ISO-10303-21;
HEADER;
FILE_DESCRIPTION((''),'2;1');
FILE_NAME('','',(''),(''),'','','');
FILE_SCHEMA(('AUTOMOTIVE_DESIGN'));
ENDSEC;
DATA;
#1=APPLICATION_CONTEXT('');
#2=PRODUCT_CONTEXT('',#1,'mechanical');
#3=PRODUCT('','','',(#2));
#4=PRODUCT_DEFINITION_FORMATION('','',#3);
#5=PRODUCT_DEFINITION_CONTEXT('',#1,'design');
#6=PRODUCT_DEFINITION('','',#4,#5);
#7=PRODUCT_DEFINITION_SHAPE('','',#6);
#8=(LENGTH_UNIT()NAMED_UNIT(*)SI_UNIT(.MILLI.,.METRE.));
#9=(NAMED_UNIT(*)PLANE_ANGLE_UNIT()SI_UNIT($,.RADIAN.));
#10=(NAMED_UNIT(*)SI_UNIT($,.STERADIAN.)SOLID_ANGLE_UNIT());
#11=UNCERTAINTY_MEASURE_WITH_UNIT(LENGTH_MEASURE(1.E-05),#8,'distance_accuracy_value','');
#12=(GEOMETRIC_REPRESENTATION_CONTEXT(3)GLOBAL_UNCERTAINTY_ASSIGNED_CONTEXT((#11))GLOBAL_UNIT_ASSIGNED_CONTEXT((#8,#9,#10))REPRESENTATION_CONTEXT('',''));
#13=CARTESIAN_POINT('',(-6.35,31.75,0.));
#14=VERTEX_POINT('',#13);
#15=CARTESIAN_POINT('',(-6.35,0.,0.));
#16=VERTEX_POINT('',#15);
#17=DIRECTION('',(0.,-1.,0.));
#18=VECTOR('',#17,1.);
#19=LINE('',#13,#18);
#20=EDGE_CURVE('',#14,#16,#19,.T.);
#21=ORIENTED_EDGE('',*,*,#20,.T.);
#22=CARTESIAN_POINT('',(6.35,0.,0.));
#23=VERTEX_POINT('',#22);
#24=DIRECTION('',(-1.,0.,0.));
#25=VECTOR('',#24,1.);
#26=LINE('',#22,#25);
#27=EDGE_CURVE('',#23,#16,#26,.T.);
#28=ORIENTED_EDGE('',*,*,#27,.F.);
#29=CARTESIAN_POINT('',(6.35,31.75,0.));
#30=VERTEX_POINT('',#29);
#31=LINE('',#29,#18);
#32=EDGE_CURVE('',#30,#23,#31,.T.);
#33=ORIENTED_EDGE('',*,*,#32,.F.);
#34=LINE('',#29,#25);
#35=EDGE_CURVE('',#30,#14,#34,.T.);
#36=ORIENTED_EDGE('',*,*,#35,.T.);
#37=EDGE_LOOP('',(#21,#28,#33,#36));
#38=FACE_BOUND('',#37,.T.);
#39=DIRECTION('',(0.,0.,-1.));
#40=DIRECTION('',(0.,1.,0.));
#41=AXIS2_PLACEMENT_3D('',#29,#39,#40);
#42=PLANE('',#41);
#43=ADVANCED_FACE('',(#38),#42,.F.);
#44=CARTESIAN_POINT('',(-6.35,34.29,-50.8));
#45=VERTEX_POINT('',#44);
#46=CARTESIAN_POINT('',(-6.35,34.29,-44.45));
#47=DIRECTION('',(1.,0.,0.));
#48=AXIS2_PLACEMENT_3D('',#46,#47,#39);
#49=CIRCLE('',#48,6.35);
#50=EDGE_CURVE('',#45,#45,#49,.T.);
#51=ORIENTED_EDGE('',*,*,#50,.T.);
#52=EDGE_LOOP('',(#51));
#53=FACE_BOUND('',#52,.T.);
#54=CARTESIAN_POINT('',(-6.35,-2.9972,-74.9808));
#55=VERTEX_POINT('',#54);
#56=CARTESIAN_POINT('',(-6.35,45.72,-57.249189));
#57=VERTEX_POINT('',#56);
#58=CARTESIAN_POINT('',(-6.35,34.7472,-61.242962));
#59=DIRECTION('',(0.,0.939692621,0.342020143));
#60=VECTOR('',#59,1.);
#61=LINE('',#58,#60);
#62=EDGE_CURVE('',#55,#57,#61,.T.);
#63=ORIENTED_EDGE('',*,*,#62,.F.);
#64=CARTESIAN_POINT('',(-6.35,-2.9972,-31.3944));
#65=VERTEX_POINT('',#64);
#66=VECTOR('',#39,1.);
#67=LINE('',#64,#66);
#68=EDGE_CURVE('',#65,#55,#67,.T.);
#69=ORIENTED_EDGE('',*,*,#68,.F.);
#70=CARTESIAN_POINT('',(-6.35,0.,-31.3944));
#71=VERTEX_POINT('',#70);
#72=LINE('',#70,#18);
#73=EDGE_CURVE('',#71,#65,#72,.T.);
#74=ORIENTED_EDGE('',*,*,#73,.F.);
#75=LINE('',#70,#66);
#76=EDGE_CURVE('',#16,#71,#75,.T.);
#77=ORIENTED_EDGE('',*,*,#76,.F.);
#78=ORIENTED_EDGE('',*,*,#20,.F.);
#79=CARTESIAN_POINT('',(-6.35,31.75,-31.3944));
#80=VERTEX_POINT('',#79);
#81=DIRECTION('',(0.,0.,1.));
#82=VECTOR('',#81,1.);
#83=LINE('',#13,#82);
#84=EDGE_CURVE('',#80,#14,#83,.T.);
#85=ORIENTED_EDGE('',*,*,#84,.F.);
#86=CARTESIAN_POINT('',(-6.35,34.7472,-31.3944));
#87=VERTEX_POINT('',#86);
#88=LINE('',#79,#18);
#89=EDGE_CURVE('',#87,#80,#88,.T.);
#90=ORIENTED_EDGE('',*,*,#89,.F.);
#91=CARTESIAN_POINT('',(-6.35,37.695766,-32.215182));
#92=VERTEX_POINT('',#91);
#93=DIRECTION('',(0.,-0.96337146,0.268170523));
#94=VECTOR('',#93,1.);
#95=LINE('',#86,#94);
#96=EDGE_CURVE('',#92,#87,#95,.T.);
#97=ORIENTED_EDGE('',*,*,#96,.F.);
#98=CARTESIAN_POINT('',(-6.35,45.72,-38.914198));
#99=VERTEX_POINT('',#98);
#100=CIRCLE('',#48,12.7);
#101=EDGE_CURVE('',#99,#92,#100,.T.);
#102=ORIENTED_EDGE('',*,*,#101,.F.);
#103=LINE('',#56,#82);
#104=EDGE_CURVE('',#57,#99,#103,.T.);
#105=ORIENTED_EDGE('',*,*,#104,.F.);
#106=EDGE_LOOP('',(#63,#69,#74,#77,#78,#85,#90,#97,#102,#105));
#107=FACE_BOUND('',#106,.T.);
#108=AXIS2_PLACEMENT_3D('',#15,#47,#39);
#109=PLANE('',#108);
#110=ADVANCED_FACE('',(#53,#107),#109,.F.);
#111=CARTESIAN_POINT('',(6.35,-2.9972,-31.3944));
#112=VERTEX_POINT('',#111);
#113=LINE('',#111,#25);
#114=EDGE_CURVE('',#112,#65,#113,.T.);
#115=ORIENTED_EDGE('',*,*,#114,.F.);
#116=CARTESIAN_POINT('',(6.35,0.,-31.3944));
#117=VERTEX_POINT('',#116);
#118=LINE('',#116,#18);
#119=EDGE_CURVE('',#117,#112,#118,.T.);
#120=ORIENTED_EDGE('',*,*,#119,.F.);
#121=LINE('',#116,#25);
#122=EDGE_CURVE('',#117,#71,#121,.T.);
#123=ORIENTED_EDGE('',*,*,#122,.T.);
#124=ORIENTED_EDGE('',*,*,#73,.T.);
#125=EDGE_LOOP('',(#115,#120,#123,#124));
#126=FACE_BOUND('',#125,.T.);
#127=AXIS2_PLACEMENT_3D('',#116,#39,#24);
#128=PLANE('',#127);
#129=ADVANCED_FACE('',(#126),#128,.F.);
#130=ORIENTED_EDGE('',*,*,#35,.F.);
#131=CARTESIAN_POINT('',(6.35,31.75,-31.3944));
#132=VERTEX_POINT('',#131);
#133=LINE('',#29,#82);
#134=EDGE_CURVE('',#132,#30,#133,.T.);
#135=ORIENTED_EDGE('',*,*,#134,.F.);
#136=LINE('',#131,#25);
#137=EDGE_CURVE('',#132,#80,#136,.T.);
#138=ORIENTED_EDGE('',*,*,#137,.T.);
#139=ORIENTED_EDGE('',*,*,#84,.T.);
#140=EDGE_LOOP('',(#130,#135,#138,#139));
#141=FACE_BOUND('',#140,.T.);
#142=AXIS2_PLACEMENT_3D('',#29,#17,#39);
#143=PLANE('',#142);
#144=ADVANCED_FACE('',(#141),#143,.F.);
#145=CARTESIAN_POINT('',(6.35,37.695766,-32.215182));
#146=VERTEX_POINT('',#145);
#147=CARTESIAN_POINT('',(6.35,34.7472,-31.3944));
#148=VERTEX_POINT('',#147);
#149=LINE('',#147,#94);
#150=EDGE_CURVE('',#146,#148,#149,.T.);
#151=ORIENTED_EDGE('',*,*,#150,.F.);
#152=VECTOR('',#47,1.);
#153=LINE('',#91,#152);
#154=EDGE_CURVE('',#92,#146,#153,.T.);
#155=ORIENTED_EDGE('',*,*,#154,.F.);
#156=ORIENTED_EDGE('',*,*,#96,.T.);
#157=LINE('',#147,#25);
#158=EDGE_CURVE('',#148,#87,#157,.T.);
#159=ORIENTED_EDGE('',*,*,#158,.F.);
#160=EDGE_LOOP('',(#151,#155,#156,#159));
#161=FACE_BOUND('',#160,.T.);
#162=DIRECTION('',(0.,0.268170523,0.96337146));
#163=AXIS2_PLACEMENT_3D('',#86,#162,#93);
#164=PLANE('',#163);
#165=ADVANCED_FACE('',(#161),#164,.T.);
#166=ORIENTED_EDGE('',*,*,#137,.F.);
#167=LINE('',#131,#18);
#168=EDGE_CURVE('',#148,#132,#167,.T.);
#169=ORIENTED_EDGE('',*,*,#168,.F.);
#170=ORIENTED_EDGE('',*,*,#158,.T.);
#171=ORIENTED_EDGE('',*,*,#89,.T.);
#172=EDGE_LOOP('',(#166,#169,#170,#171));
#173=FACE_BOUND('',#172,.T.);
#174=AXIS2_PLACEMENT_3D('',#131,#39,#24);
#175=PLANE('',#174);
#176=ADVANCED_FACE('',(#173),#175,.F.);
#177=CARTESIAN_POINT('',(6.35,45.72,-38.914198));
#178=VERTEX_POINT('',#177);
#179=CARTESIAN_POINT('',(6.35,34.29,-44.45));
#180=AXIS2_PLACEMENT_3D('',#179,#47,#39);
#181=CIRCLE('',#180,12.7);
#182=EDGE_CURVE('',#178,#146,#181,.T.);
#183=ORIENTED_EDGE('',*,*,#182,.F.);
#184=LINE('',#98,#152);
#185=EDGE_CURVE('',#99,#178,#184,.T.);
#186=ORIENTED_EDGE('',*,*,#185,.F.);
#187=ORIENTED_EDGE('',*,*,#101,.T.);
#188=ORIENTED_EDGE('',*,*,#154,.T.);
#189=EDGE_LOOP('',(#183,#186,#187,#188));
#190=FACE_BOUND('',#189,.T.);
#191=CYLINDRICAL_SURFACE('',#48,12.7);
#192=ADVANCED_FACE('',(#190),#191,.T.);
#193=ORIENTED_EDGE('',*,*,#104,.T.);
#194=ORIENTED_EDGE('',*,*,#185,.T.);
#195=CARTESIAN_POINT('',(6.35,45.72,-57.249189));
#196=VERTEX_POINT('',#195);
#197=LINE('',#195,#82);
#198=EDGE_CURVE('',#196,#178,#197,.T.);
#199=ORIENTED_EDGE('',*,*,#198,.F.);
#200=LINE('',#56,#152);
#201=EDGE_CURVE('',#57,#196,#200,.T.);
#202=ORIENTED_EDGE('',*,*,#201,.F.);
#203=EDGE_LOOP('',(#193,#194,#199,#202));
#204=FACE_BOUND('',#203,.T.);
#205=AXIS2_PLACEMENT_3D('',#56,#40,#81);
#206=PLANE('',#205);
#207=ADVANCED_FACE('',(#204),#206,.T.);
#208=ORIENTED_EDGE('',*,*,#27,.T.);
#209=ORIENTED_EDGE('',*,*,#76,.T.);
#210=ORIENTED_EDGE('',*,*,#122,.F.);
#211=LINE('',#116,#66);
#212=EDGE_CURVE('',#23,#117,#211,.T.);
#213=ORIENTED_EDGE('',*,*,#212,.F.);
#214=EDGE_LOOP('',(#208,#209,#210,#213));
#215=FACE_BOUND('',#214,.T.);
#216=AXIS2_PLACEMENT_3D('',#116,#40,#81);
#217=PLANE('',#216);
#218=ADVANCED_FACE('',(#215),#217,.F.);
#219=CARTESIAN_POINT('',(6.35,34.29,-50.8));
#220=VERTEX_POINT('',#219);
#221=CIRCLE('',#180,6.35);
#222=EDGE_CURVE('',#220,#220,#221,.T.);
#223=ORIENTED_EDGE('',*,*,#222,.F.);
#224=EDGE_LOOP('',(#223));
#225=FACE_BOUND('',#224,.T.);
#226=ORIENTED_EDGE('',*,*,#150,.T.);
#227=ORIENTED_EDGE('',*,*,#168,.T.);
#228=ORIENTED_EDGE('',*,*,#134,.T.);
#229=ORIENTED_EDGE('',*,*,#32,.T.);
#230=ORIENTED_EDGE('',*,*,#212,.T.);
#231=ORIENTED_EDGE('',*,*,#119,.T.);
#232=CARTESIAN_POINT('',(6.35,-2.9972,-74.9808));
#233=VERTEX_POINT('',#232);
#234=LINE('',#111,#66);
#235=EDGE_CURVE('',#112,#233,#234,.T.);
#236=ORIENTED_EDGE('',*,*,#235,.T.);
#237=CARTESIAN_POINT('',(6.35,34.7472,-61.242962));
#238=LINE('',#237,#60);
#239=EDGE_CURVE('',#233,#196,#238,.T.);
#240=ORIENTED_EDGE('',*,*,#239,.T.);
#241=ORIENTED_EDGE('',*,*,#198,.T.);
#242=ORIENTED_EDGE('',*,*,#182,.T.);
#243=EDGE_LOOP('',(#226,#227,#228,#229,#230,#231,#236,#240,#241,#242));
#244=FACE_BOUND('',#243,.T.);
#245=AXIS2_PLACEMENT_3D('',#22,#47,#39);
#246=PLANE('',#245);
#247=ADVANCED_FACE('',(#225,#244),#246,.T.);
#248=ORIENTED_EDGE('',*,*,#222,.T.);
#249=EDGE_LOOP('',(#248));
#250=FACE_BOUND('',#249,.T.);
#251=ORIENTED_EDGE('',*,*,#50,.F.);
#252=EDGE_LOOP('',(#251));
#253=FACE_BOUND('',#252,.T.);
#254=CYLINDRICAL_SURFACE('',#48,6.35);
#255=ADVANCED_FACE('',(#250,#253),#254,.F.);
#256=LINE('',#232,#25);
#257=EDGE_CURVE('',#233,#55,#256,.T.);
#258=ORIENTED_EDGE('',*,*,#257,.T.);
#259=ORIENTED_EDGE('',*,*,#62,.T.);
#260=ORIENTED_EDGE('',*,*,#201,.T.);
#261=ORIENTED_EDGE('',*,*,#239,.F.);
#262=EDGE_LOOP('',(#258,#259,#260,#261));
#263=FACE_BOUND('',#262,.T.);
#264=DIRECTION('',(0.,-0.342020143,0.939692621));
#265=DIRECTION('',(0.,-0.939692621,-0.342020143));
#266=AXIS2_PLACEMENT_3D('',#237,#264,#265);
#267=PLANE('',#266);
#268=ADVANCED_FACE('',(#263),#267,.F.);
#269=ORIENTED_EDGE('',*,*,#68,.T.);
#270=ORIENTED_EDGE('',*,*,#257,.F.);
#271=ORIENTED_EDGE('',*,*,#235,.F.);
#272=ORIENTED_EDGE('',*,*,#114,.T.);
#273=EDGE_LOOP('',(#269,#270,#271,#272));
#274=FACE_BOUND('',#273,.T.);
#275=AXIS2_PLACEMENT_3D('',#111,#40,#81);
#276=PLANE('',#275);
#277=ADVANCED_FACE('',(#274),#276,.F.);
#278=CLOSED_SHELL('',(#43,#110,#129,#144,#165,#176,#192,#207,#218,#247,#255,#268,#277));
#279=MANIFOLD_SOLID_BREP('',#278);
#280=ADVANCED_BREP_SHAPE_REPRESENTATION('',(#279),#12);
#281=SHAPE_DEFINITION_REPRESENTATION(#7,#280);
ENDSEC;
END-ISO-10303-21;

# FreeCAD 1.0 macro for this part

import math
import FreeCAD as App
import Part
import Sketcher
Q = App.Units.Quantity


def add_polygon(sketch, points):
    """Adds a closed chain of lines whose ends are joined by coincident constraints."""
    first, n = sketch.GeometryCount, len(points)
    for a, b in zip(points, points[1:] + points[:1]):
        sketch.addGeometry(Part.LineSegment(App.Vector(*a, 0), App.Vector(*b, 0)), False)
    for i in range(n):
        sketch.addConstraint(Sketcher.Constraint("Coincident", first + i, 2, first + (i + 1) % n, 1))

doc = App.newDocument("Part")
body = doc.addObject("PartDesign::Body", "Body")

# Sketch on YZ plane
sketch1 = body.newObject("Sketcher::SketchObject", "Sketch")
sketch1.AttachmentSupport = (doc.getObject("YZ_Plane"), [""])
sketch1.MapMode = "FlatFace"
add_polygon(sketch1, [(31.8, 0), (0, 0), (0, -31.4), (-3, -31.4), (-3, -75), (34.7, -61.2), (34.7, -31.4), (31.8, -31.4)])  # lines 0-7
sketch1.addConstraint([
    Sketcher.Constraint("Horizontal", 0),
    Sketcher.Constraint("Vertical", 1),
    Sketcher.Constraint("Horizontal", 2),
    Sketcher.Constraint("Vertical", 3),
    Sketcher.Constraint("Vertical", 5),
    Sketcher.Constraint("Horizontal", 6),
    Sketcher.Constraint("Vertical", 7),
    Sketcher.Constraint("Coincident", 0, 2, -1, 1),
    Sketcher.Constraint("Horizontal", 2, 2, 5, 2),
    Sketcher.Constraint("Equal", 2, 6),
    Sketcher.Constraint("Angle", 4, Q("20 deg")),
    Sketcher.Constraint("DistanceX", 0, 2, 0, 1, Q("1.25 in")),
    Sketcher.Constraint("DistanceX", 2, 2, 2, 1, Q("0.118 in")),
    Sketcher.Constraint("DistanceY", 1, 2, 1, 1, Q("1.236 in")),
    Sketcher.Constraint("DistanceY", 3, 2, 3, 1, Q("1.716 in")),
])
pad1 = body.newObject("PartDesign::Pad", "Pad")
pad1.Profile = sketch1
pad1.Length = Q("0.5 in")
pad1.Midplane = True

# Sketch on YZ plane
sketch2 = body.newObject("Sketcher::SketchObject", "Sketch001")
sketch2.AttachmentSupport = (doc.getObject("YZ_Plane"), [""])
sketch2.MapMode = "FlatFace"
sketch2.AttachmentOffset = App.Placement(App.Vector(0, 0, 0.25 * 25.4), App.Rotation())
sketch2.addGeometry([
    Part.LineSegment(App.Vector(34.75, -57.14, 0), App.Vector(34.75, -61.24, 0)),  # 0
    Part.LineSegment(App.Vector(34.75, -61.24, 0), App.Vector(45.72, -57.25, 0)),  # 1
    Part.LineSegment(App.Vector(45.72, -57.25, 0), App.Vector(45.72, -38.91, 0)),  # 2
    Part.ArcOfCircle(Part.Circle(App.Vector(34.29, -44.45, 0), App.Vector(0, 0, 1), 12.7), math.radians(26), math.radians(74)),  # 3
    Part.LineSegment(App.Vector(37.7, -32.22, 0), App.Vector(34.75, -31.39, 0)),  # 4
    Part.LineSegment(App.Vector(34.75, -31.39, 0), App.Vector(34.75, -31.76, 0)),  # 5
    Part.ArcOfCircle(Part.Circle(App.Vector(34.29, -44.45, 0), App.Vector(0, 0, 1), 12.7), math.radians(88), math.radians(272)),  # 6
], False)
sketch2.addConstraint([
    Sketcher.Constraint("Coincident", 0, 2, 1, 1),
    Sketcher.Constraint("Coincident", 1, 2, 2, 1),
    Sketcher.Constraint("Coincident", 2, 2, 3, 1),
    Sketcher.Constraint("Tangent", 3, 2, 4, 1),
    Sketcher.Constraint("Coincident", 4, 2, 5, 1),
    Sketcher.Constraint("Coincident", 5, 2, 6, 1),
    Sketcher.Constraint("Coincident", 6, 2, 0, 1),
    Sketcher.Constraint("Vertical", 0),
    Sketcher.Constraint("Vertical", 2),
    Sketcher.Constraint("Vertical", 5),
    Sketcher.Constraint("Coincident", 6, 3, 3, 3),
    Sketcher.Constraint("Equal", 3, 6),
    Sketcher.Constraint("Vertical", 0, 2, 4, 2),
    Sketcher.Constraint("Radius", 3, Q("0.5 in")),
    Sketcher.Constraint("Angle", 1, Q("20 deg")),
    Sketcher.Constraint("DistanceX", -1, 1, 1, 2, Q("1.8 in")),
    Sketcher.Constraint("DistanceX", -1, 1, 3, 3, Q("1.35 in")),
    Sketcher.Constraint("DistanceY", 3, 3, -1, 1, Q("1.75 in")),
    Sketcher.Constraint("DistanceX", -1, 1, 0, 2, Q("1.368 in")),
    Sketcher.Constraint("DistanceY", 4, 2, -1, 1, Q("1.236 in")),
    Sketcher.Constraint("DistanceY", 2, 1, 2, 2, 18.334991),
])
pad2 = body.newObject("PartDesign::Pad", "Pad001")
pad2.Profile = sketch2
pad2.Type = "UpToLast"
pad2.Reversed = True

# Sketch on YZ plane
sketch3 = body.newObject("Sketcher::SketchObject", "Sketch002")
sketch3.AttachmentSupport = (doc.getObject("YZ_Plane"), [""])
sketch3.MapMode = "FlatFace"
sketch3.AttachmentOffset = App.Placement(App.Vector(0, 0, 0.25 * 25.4), App.Rotation())
sketch3.addGeometry(Part.Circle(App.Vector(34, -44, 0), App.Vector(0, 0, 1), 6), False)
sketch3.addConstraint([
    Sketcher.Constraint("Diameter", 0, Q("0.5 in")),
    Sketcher.Constraint("DistanceX", -1, 1, 0, 3, Q("1.35 in")),
    Sketcher.Constraint("DistanceY", 0, 3, -1, 1, Q("1.75 in")),
])
pocket1 = body.newObject("PartDesign::Pocket", "Pocket")
pocket1.Profile = sketch3
pocket1.Type = "ThroughAll"

doc.recompute()
